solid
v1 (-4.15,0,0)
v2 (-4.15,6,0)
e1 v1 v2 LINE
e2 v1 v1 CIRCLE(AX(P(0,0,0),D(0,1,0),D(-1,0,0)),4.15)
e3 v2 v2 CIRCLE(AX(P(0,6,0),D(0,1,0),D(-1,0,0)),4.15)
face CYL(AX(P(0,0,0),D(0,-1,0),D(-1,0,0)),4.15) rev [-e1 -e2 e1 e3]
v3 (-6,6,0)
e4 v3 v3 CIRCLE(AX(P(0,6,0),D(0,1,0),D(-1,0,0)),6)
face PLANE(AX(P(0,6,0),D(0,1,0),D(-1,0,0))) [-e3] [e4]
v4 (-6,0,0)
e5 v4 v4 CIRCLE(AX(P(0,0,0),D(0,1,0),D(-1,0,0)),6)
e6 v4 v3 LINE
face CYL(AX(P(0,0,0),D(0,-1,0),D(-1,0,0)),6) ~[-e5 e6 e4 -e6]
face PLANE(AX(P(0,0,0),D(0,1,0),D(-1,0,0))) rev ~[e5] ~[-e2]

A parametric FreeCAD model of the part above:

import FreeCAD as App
import Part
import Sketcher
from FreeCAD import Vector
Q = App.Units.Quantity

doc = App.newDocument("Part")
params = doc.addObject("Spreadsheet::Sheet", "Params")
for row, (alias, value) in enumerate([
    ("sketch1_diameter", "12 mm"),
    ("sketch1_diameter2", "8.3 mm"),
    ("pad1_length", "6 mm"),
], start=1):
    params.set(f"A{row}", alias)
    params.set(f"B{row}", "=" + value)
    params.setAlias(f"B{row}", alias)

body = doc.addObject("PartDesign::Body", "Body")

# Sketch on XZ plane
sketch1 = body.newObject("Sketcher::SketchObject", "Sketch")
sketch1.AttachmentSupport = (doc.getObject("XZ_Plane"), [""])
sketch1.MapMode = "FlatFace"
sketch1.addGeometry(Part.Circle(Vector(0, 0, 0), Vector(0, 0, 1), 6), False)
sketch1.addGeometry(Part.Circle(Vector(0, 0, 0), Vector(0, 0, 1), 4.2), False)
sketch1.addConstraint(Sketcher.Constraint("Coincident", 0, 3, -1, 1))
sketch1.addConstraint(Sketcher.Constraint("Coincident", 1, 3, -1, 1))
sketch1.addConstraint(Sketcher.Constraint("Diameter", 0, Q("12 mm")))
sketch1.addConstraint(Sketcher.Constraint("Diameter", 1, Q("8.3 mm")))
sketch1.setExpression("Constraints[2]", "Params.sketch1_diameter")
sketch1.setExpression("Constraints[3]", "Params.sketch1_diameter2")
pad1 = body.newObject("PartDesign::Pad", "Pad")
pad1.Profile = sketch1
pad1.setExpression("Length", "Params.pad1_length")
pad1.Reversed = True

doc.recompute()
